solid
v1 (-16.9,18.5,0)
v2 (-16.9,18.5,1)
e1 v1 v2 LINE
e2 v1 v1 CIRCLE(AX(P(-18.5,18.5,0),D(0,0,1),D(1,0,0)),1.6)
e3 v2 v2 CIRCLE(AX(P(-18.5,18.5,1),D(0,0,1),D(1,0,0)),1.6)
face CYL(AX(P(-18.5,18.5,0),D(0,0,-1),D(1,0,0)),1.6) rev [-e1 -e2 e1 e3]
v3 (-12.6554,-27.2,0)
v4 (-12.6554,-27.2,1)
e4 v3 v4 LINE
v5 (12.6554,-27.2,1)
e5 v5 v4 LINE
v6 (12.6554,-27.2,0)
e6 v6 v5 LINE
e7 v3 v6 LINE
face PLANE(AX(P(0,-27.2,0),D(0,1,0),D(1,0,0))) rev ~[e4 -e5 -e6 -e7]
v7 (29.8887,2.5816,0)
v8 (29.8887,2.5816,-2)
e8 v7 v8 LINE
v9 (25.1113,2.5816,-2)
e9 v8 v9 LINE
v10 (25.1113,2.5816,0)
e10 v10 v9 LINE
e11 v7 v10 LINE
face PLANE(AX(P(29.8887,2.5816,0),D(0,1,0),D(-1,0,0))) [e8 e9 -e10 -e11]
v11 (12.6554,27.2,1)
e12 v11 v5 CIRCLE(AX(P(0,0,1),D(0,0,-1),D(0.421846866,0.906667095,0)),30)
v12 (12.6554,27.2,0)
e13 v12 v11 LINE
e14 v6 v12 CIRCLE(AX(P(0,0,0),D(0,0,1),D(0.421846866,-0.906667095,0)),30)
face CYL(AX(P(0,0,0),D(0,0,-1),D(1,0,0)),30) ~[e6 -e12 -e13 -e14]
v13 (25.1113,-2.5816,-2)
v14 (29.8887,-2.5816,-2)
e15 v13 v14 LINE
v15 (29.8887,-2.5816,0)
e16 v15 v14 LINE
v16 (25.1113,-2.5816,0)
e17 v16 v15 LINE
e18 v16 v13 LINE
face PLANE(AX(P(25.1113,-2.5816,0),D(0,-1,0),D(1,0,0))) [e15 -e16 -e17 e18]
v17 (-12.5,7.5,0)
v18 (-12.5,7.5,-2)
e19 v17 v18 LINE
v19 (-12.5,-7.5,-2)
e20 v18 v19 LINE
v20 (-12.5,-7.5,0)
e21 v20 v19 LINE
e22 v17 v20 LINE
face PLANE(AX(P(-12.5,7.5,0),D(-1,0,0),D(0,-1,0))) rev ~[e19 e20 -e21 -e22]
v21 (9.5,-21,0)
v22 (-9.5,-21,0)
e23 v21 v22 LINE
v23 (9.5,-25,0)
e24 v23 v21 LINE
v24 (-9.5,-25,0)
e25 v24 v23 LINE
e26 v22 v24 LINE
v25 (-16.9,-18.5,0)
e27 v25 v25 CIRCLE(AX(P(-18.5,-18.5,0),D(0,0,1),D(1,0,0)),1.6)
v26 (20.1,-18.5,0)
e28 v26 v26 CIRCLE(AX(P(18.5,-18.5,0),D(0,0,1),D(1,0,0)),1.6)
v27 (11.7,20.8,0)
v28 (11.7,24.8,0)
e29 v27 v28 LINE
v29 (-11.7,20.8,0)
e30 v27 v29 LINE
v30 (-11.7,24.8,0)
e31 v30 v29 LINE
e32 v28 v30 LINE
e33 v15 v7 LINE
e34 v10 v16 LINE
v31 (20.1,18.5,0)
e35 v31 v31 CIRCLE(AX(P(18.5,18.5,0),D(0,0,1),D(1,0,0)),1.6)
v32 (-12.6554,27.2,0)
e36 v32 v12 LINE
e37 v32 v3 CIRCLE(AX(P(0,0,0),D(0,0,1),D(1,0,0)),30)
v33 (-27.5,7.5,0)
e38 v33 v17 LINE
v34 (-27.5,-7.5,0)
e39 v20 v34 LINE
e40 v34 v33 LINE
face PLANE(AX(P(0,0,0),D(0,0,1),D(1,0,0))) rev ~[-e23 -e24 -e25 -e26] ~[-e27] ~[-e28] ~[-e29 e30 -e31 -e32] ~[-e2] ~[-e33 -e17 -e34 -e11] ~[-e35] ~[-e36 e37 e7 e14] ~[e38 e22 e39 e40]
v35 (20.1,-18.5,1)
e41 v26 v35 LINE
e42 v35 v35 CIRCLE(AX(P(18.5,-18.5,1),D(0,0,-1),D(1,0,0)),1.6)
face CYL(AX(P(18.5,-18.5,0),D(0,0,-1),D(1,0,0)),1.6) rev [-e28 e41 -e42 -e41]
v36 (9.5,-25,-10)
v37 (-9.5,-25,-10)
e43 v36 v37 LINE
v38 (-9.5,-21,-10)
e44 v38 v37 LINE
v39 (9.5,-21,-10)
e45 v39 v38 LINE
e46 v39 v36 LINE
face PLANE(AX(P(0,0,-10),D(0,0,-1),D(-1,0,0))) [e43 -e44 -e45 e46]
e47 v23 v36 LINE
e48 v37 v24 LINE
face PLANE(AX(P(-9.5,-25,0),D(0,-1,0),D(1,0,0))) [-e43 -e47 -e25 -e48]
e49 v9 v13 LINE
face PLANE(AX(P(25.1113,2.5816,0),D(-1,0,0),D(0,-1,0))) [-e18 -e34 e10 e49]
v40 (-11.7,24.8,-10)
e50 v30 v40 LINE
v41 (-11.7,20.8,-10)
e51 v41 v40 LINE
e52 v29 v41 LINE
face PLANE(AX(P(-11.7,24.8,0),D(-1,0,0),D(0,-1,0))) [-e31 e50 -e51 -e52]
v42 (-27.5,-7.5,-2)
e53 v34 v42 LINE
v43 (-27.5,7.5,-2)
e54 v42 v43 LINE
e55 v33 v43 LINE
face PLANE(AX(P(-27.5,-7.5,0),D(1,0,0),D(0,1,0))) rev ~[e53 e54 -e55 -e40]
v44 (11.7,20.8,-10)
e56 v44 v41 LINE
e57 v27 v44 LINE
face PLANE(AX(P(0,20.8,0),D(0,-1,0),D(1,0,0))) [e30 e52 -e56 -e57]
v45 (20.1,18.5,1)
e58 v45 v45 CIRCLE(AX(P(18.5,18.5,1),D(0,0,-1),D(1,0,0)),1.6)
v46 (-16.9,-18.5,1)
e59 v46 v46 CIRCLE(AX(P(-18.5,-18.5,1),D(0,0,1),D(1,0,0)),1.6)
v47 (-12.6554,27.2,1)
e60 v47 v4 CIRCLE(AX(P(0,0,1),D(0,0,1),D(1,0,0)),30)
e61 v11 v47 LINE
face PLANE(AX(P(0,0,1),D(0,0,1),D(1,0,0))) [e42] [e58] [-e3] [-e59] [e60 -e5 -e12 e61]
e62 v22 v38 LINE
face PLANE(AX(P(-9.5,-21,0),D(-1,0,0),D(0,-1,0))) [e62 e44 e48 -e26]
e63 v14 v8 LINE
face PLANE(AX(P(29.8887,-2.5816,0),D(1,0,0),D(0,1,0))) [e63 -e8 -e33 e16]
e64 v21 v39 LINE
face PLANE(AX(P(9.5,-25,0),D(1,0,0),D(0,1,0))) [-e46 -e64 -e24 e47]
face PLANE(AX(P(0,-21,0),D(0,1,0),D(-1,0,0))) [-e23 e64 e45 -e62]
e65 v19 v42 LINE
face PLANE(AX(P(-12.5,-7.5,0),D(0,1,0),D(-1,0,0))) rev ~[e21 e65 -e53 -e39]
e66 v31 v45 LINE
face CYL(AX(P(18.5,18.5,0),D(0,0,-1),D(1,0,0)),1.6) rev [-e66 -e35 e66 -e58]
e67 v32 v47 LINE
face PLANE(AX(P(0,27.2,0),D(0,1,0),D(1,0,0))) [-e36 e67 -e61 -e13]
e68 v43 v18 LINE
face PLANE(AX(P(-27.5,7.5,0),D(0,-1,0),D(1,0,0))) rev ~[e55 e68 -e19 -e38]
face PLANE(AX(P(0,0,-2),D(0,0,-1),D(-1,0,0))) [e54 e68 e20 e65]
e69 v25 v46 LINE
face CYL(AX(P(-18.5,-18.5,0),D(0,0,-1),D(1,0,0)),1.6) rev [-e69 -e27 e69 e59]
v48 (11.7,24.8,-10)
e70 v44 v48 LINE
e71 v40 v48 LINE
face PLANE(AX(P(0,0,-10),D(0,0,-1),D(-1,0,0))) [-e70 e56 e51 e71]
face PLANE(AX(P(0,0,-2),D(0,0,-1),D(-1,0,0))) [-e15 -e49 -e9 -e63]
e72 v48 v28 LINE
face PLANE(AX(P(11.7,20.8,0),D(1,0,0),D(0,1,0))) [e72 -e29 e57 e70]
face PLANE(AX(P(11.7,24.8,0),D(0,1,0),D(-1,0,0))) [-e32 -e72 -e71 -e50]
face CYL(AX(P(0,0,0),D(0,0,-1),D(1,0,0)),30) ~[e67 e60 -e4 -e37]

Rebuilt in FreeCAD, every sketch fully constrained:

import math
import FreeCAD as App
import Part
import Sketcher
Q = App.Units.Quantity


def add_polygon(sketch, points):
    """Adds a closed chain of lines whose ends are joined by coincident constraints."""
    first, n = sketch.GeometryCount, len(points)
    for a, b in zip(points, points[1:] + points[:1]):
        sketch.addGeometry(Part.LineSegment(App.Vector(*a, 0), App.Vector(*b, 0)), False)
    for i in range(n):
        sketch.addConstraint(Sketcher.Constraint("Coincident", first + i, 2, first + (i + 1) % n, 1))

doc = App.newDocument("Part")
body = doc.addObject("PartDesign::Body", "Body")

sketch1 = body.newObject("Sketcher::SketchObject", "Sketch")
sketch1.AttachmentSupport = (doc.getObject("XY_Plane"), [""])
sketch1.MapMode = "FlatFace"
sketch1.addGeometry([
    Part.ArcOfCircle(Part.Circle(App.Vector(0, 0, 0), App.Vector(0, 0, 1), 30), math.radians(-65.048757), math.radians(65.048757)),
    Part.LineSegment(App.Vector(12.6554, 27.2, 0), App.Vector(-12.6554, 27.2, 0)),
    Part.ArcOfCircle(Part.Circle(App.Vector(0, 0, 0), App.Vector(0, 0, 1), 30), math.radians(114.951243), math.radians(245.048757)),
    Part.LineSegment(App.Vector(-12.6554, -27.2, 0), App.Vector(12.6554, -27.2, 0)),
    Part.Circle(App.Vector(18.5, -18.5, 0), App.Vector(0, 0, 1), 1.6),
    Part.Circle(App.Vector(18.5, 18.5, 0), App.Vector(0, 0, 1), 1.6),
    Part.Circle(App.Vector(-18.5, -18.5, 0), App.Vector(0, 0, 1), 1.6),
    Part.Circle(App.Vector(-18.5, 18.5, 0), App.Vector(0, 0, 1), 1.6),
], False)
sketch1.addConstraint([
    Sketcher.Constraint("Coincident", 0, 2, 1, 1),
    Sketcher.Constraint("Coincident", 1, 2, 2, 1),
    Sketcher.Constraint("Coincident", 2, 2, 3, 1),
    Sketcher.Constraint("Coincident", 3, 2, 0, 1),
    Sketcher.Constraint("Horizontal", 1),
    Sketcher.Constraint("Horizontal", 3),
    Sketcher.Constraint("Coincident", 0, 3, -1, 1),
    Sketcher.Constraint("Coincident", 2, 3, -1, 1),
    Sketcher.Constraint("Equal", 0, 2),
    Sketcher.Constraint("Equal", 4, 5),
    Sketcher.Constraint("Equal", 5, 6),
    Sketcher.Constraint("Equal", 6, 7),
    Sketcher.Constraint("Symmetric", 5, 3, 6, 3, -1, 1),
    Sketcher.Constraint("Symmetric", 4, 3, 7, 3, -1, 1),
    Sketcher.Constraint("Symmetric", 4, 3, 6, 3, -2),
    Sketcher.Constraint("Vertical", 1, 2, 2, 2),
    Sketcher.Constraint("Radius", 0, Q("30 mm")),
    Sketcher.Constraint("Diameter", 4, Q("3.2 mm")),
    Sketcher.Constraint("DistanceY", 4, 3, 5, 3, Q("37 mm")),
    Sketcher.Constraint("DistanceX", 6, 3, 4, 3, Q("37 mm")),
    Sketcher.Constraint("DistanceY", -1, 1, 0, 2, Q("27.2 mm")),
])
pad1 = body.newObject("PartDesign::Pad", "Pad")
pad1.Profile = sketch1
pad1.Length = 1

sketch2 = body.newObject("Sketcher::SketchObject", "Sketch001")
sketch2.AttachmentSupport = (doc.getObject("XY_Plane"), [""])
sketch2.MapMode = "FlatFace"
add_polygon(sketch2, [(-9.5, -21), (0, -21), (9.5, -21), (9.5, -25), (-9.5, -25)])
add_polygon(sketch2, [(11.7, 20.8), (-11.7, 20.8), (-11.7, 24.8), (11.7, 24.8)])
add_polygon(sketch2, [(25.1113, 2.5816), (29.8887, 2.5816), (29.8887, -2.5816), (25.1113, -2.5816)])
add_polygon(sketch2, [(-12.5, 7.5), (-12.5, -7.5), (-27.5, -7.5), (-27.5, 7.5)])
sketch2.addConstraint([
    Sketcher.Constraint("Horizontal", 0),
    Sketcher.Constraint("Horizontal", 1),
    Sketcher.Constraint("Vertical", 2),
    Sketcher.Constraint("Horizontal", 3),
    Sketcher.Constraint("Vertical", 4),
    Sketcher.Constraint("Horizontal", 5),
    Sketcher.Constraint("Vertical", 6),
    Sketcher.Constraint("Horizontal", 7),
    Sketcher.Constraint("Vertical", 8),
    Sketcher.Constraint("Horizontal", 9),
    Sketcher.Constraint("Vertical", 10),
    Sketcher.Constraint("Horizontal", 11),
    Sketcher.Constraint("Vertical", 12),
    Sketcher.Constraint("Vertical", 13),
    Sketcher.Constraint("Horizontal", 14),
    Sketcher.Constraint("Vertical", 15),
    Sketcher.Constraint("Horizontal", 16),
    Sketcher.Constraint("PointOnObject", 0, 2, -2),
    Sketcher.Constraint("Equal", 0, 1),
    Sketcher.Constraint("Equal", 4, 6),
    Sketcher.Constraint("Equal", 16, 13),
    Sketcher.Constraint("DistanceX", 3, 2, 3, 1, Q("19 mm")),
    Sketcher.Constraint("DistanceX", 14, 2, 14, 1, Q("15 mm")),
    Sketcher.Constraint("DistanceY", 2, 2, 2, 1, Q("4 mm")),
    Sketcher.Constraint("DistanceX", 5, 2, 5, 1, Q("23.4 mm")),
    Sketcher.Constraint("DistanceY", 0, 2, -1, 1, Q("21 mm")),
    Sketcher.Constraint("DistanceX", 13, 2, 4, 2, Q("3 mm")),
    Sketcher.Constraint("DistanceX", 5, 2, -1, 1, Q("11.7 mm")),
    Sketcher.Constraint("DistanceY", -1, 1, 5, 2, Q("20.8 mm")),
    Sketcher.Constraint("DistanceY", 13, 2, -1, 1, Q("7.5 mm")),
    Sketcher.Constraint("DistanceX", 9, 1, 9, 2, Q("4.7774 mm")),
    Sketcher.Constraint("DistanceY", 10, 2, 10, 1, Q("5.1632 mm")),
    Sketcher.Constraint("DistanceX", -1, 1, 9, 2, Q("29.8887 mm")),
    Sketcher.Constraint("DistanceY", -1, 1, 9, 2, Q("2.5816 mm")),
])
pad2 = body.newObject("PartDesign::Pad", "Pad001")
pad2.Profile = sketch2
pad2.Length = 2
pad2.Reversed = True

sketch3 = body.newObject("Sketcher::SketchObject", "Sketch002")
sketch3.AttachmentSupport = (doc.getObject("XY_Plane"), [""])
sketch3.MapMode = "FlatFace"
sketch3.AttachmentOffset = App.Placement(App.Vector(0, 0, -2), App.Rotation())
add_polygon(sketch3, [(-9.5, -21), (9.5, -21), (9.5, -25), (-9.5, -25)])
add_polygon(sketch3, [(-11.7, 20.8), (-11.7, 24.8), (11.7, 24.8), (11.7, 20.8)])
sketch3.addConstraint([
    Sketcher.Constraint("Horizontal", 0),
    Sketcher.Constraint("Vertical", 1),
    Sketcher.Constraint("Horizontal", 2),
    Sketcher.Constraint("Vertical", 3),
    Sketcher.Constraint("Vertical", 4),
    Sketcher.Constraint("Horizontal", 5),
    Sketcher.Constraint("Vertical", 6),
    Sketcher.Constraint("Horizontal", 7),
    Sketcher.Constraint("Equal", 3, 4),
    Sketcher.Constraint("DistanceX", 0, 1, 0, 2, Q("19 mm")),
    Sketcher.Constraint("DistanceY", 1, 2, 1, 1, Q("4 mm")),
    Sketcher.Constraint("DistanceX", 5, 1, 5, 2, Q("23.4 mm")),
    Sketcher.Constraint("DistanceY", 0, 2, -1, 1, Q("21 mm")),
    Sketcher.Constraint("DistanceX", -1, 1, 0, 2, Q("9.5 mm")),
    Sketcher.Constraint("DistanceX", 4, 2, -1, 1, Q("11.7 mm")),
    Sketcher.Constraint("DistanceY", -1, 1, 4, 2, Q("24.8 mm")),
])
pad3 = body.newObject("PartDesign::Pad", "Pad002")
pad3.Profile = sketch3
pad3.Length = 8
pad3.Reversed = True

doc.recompute()
